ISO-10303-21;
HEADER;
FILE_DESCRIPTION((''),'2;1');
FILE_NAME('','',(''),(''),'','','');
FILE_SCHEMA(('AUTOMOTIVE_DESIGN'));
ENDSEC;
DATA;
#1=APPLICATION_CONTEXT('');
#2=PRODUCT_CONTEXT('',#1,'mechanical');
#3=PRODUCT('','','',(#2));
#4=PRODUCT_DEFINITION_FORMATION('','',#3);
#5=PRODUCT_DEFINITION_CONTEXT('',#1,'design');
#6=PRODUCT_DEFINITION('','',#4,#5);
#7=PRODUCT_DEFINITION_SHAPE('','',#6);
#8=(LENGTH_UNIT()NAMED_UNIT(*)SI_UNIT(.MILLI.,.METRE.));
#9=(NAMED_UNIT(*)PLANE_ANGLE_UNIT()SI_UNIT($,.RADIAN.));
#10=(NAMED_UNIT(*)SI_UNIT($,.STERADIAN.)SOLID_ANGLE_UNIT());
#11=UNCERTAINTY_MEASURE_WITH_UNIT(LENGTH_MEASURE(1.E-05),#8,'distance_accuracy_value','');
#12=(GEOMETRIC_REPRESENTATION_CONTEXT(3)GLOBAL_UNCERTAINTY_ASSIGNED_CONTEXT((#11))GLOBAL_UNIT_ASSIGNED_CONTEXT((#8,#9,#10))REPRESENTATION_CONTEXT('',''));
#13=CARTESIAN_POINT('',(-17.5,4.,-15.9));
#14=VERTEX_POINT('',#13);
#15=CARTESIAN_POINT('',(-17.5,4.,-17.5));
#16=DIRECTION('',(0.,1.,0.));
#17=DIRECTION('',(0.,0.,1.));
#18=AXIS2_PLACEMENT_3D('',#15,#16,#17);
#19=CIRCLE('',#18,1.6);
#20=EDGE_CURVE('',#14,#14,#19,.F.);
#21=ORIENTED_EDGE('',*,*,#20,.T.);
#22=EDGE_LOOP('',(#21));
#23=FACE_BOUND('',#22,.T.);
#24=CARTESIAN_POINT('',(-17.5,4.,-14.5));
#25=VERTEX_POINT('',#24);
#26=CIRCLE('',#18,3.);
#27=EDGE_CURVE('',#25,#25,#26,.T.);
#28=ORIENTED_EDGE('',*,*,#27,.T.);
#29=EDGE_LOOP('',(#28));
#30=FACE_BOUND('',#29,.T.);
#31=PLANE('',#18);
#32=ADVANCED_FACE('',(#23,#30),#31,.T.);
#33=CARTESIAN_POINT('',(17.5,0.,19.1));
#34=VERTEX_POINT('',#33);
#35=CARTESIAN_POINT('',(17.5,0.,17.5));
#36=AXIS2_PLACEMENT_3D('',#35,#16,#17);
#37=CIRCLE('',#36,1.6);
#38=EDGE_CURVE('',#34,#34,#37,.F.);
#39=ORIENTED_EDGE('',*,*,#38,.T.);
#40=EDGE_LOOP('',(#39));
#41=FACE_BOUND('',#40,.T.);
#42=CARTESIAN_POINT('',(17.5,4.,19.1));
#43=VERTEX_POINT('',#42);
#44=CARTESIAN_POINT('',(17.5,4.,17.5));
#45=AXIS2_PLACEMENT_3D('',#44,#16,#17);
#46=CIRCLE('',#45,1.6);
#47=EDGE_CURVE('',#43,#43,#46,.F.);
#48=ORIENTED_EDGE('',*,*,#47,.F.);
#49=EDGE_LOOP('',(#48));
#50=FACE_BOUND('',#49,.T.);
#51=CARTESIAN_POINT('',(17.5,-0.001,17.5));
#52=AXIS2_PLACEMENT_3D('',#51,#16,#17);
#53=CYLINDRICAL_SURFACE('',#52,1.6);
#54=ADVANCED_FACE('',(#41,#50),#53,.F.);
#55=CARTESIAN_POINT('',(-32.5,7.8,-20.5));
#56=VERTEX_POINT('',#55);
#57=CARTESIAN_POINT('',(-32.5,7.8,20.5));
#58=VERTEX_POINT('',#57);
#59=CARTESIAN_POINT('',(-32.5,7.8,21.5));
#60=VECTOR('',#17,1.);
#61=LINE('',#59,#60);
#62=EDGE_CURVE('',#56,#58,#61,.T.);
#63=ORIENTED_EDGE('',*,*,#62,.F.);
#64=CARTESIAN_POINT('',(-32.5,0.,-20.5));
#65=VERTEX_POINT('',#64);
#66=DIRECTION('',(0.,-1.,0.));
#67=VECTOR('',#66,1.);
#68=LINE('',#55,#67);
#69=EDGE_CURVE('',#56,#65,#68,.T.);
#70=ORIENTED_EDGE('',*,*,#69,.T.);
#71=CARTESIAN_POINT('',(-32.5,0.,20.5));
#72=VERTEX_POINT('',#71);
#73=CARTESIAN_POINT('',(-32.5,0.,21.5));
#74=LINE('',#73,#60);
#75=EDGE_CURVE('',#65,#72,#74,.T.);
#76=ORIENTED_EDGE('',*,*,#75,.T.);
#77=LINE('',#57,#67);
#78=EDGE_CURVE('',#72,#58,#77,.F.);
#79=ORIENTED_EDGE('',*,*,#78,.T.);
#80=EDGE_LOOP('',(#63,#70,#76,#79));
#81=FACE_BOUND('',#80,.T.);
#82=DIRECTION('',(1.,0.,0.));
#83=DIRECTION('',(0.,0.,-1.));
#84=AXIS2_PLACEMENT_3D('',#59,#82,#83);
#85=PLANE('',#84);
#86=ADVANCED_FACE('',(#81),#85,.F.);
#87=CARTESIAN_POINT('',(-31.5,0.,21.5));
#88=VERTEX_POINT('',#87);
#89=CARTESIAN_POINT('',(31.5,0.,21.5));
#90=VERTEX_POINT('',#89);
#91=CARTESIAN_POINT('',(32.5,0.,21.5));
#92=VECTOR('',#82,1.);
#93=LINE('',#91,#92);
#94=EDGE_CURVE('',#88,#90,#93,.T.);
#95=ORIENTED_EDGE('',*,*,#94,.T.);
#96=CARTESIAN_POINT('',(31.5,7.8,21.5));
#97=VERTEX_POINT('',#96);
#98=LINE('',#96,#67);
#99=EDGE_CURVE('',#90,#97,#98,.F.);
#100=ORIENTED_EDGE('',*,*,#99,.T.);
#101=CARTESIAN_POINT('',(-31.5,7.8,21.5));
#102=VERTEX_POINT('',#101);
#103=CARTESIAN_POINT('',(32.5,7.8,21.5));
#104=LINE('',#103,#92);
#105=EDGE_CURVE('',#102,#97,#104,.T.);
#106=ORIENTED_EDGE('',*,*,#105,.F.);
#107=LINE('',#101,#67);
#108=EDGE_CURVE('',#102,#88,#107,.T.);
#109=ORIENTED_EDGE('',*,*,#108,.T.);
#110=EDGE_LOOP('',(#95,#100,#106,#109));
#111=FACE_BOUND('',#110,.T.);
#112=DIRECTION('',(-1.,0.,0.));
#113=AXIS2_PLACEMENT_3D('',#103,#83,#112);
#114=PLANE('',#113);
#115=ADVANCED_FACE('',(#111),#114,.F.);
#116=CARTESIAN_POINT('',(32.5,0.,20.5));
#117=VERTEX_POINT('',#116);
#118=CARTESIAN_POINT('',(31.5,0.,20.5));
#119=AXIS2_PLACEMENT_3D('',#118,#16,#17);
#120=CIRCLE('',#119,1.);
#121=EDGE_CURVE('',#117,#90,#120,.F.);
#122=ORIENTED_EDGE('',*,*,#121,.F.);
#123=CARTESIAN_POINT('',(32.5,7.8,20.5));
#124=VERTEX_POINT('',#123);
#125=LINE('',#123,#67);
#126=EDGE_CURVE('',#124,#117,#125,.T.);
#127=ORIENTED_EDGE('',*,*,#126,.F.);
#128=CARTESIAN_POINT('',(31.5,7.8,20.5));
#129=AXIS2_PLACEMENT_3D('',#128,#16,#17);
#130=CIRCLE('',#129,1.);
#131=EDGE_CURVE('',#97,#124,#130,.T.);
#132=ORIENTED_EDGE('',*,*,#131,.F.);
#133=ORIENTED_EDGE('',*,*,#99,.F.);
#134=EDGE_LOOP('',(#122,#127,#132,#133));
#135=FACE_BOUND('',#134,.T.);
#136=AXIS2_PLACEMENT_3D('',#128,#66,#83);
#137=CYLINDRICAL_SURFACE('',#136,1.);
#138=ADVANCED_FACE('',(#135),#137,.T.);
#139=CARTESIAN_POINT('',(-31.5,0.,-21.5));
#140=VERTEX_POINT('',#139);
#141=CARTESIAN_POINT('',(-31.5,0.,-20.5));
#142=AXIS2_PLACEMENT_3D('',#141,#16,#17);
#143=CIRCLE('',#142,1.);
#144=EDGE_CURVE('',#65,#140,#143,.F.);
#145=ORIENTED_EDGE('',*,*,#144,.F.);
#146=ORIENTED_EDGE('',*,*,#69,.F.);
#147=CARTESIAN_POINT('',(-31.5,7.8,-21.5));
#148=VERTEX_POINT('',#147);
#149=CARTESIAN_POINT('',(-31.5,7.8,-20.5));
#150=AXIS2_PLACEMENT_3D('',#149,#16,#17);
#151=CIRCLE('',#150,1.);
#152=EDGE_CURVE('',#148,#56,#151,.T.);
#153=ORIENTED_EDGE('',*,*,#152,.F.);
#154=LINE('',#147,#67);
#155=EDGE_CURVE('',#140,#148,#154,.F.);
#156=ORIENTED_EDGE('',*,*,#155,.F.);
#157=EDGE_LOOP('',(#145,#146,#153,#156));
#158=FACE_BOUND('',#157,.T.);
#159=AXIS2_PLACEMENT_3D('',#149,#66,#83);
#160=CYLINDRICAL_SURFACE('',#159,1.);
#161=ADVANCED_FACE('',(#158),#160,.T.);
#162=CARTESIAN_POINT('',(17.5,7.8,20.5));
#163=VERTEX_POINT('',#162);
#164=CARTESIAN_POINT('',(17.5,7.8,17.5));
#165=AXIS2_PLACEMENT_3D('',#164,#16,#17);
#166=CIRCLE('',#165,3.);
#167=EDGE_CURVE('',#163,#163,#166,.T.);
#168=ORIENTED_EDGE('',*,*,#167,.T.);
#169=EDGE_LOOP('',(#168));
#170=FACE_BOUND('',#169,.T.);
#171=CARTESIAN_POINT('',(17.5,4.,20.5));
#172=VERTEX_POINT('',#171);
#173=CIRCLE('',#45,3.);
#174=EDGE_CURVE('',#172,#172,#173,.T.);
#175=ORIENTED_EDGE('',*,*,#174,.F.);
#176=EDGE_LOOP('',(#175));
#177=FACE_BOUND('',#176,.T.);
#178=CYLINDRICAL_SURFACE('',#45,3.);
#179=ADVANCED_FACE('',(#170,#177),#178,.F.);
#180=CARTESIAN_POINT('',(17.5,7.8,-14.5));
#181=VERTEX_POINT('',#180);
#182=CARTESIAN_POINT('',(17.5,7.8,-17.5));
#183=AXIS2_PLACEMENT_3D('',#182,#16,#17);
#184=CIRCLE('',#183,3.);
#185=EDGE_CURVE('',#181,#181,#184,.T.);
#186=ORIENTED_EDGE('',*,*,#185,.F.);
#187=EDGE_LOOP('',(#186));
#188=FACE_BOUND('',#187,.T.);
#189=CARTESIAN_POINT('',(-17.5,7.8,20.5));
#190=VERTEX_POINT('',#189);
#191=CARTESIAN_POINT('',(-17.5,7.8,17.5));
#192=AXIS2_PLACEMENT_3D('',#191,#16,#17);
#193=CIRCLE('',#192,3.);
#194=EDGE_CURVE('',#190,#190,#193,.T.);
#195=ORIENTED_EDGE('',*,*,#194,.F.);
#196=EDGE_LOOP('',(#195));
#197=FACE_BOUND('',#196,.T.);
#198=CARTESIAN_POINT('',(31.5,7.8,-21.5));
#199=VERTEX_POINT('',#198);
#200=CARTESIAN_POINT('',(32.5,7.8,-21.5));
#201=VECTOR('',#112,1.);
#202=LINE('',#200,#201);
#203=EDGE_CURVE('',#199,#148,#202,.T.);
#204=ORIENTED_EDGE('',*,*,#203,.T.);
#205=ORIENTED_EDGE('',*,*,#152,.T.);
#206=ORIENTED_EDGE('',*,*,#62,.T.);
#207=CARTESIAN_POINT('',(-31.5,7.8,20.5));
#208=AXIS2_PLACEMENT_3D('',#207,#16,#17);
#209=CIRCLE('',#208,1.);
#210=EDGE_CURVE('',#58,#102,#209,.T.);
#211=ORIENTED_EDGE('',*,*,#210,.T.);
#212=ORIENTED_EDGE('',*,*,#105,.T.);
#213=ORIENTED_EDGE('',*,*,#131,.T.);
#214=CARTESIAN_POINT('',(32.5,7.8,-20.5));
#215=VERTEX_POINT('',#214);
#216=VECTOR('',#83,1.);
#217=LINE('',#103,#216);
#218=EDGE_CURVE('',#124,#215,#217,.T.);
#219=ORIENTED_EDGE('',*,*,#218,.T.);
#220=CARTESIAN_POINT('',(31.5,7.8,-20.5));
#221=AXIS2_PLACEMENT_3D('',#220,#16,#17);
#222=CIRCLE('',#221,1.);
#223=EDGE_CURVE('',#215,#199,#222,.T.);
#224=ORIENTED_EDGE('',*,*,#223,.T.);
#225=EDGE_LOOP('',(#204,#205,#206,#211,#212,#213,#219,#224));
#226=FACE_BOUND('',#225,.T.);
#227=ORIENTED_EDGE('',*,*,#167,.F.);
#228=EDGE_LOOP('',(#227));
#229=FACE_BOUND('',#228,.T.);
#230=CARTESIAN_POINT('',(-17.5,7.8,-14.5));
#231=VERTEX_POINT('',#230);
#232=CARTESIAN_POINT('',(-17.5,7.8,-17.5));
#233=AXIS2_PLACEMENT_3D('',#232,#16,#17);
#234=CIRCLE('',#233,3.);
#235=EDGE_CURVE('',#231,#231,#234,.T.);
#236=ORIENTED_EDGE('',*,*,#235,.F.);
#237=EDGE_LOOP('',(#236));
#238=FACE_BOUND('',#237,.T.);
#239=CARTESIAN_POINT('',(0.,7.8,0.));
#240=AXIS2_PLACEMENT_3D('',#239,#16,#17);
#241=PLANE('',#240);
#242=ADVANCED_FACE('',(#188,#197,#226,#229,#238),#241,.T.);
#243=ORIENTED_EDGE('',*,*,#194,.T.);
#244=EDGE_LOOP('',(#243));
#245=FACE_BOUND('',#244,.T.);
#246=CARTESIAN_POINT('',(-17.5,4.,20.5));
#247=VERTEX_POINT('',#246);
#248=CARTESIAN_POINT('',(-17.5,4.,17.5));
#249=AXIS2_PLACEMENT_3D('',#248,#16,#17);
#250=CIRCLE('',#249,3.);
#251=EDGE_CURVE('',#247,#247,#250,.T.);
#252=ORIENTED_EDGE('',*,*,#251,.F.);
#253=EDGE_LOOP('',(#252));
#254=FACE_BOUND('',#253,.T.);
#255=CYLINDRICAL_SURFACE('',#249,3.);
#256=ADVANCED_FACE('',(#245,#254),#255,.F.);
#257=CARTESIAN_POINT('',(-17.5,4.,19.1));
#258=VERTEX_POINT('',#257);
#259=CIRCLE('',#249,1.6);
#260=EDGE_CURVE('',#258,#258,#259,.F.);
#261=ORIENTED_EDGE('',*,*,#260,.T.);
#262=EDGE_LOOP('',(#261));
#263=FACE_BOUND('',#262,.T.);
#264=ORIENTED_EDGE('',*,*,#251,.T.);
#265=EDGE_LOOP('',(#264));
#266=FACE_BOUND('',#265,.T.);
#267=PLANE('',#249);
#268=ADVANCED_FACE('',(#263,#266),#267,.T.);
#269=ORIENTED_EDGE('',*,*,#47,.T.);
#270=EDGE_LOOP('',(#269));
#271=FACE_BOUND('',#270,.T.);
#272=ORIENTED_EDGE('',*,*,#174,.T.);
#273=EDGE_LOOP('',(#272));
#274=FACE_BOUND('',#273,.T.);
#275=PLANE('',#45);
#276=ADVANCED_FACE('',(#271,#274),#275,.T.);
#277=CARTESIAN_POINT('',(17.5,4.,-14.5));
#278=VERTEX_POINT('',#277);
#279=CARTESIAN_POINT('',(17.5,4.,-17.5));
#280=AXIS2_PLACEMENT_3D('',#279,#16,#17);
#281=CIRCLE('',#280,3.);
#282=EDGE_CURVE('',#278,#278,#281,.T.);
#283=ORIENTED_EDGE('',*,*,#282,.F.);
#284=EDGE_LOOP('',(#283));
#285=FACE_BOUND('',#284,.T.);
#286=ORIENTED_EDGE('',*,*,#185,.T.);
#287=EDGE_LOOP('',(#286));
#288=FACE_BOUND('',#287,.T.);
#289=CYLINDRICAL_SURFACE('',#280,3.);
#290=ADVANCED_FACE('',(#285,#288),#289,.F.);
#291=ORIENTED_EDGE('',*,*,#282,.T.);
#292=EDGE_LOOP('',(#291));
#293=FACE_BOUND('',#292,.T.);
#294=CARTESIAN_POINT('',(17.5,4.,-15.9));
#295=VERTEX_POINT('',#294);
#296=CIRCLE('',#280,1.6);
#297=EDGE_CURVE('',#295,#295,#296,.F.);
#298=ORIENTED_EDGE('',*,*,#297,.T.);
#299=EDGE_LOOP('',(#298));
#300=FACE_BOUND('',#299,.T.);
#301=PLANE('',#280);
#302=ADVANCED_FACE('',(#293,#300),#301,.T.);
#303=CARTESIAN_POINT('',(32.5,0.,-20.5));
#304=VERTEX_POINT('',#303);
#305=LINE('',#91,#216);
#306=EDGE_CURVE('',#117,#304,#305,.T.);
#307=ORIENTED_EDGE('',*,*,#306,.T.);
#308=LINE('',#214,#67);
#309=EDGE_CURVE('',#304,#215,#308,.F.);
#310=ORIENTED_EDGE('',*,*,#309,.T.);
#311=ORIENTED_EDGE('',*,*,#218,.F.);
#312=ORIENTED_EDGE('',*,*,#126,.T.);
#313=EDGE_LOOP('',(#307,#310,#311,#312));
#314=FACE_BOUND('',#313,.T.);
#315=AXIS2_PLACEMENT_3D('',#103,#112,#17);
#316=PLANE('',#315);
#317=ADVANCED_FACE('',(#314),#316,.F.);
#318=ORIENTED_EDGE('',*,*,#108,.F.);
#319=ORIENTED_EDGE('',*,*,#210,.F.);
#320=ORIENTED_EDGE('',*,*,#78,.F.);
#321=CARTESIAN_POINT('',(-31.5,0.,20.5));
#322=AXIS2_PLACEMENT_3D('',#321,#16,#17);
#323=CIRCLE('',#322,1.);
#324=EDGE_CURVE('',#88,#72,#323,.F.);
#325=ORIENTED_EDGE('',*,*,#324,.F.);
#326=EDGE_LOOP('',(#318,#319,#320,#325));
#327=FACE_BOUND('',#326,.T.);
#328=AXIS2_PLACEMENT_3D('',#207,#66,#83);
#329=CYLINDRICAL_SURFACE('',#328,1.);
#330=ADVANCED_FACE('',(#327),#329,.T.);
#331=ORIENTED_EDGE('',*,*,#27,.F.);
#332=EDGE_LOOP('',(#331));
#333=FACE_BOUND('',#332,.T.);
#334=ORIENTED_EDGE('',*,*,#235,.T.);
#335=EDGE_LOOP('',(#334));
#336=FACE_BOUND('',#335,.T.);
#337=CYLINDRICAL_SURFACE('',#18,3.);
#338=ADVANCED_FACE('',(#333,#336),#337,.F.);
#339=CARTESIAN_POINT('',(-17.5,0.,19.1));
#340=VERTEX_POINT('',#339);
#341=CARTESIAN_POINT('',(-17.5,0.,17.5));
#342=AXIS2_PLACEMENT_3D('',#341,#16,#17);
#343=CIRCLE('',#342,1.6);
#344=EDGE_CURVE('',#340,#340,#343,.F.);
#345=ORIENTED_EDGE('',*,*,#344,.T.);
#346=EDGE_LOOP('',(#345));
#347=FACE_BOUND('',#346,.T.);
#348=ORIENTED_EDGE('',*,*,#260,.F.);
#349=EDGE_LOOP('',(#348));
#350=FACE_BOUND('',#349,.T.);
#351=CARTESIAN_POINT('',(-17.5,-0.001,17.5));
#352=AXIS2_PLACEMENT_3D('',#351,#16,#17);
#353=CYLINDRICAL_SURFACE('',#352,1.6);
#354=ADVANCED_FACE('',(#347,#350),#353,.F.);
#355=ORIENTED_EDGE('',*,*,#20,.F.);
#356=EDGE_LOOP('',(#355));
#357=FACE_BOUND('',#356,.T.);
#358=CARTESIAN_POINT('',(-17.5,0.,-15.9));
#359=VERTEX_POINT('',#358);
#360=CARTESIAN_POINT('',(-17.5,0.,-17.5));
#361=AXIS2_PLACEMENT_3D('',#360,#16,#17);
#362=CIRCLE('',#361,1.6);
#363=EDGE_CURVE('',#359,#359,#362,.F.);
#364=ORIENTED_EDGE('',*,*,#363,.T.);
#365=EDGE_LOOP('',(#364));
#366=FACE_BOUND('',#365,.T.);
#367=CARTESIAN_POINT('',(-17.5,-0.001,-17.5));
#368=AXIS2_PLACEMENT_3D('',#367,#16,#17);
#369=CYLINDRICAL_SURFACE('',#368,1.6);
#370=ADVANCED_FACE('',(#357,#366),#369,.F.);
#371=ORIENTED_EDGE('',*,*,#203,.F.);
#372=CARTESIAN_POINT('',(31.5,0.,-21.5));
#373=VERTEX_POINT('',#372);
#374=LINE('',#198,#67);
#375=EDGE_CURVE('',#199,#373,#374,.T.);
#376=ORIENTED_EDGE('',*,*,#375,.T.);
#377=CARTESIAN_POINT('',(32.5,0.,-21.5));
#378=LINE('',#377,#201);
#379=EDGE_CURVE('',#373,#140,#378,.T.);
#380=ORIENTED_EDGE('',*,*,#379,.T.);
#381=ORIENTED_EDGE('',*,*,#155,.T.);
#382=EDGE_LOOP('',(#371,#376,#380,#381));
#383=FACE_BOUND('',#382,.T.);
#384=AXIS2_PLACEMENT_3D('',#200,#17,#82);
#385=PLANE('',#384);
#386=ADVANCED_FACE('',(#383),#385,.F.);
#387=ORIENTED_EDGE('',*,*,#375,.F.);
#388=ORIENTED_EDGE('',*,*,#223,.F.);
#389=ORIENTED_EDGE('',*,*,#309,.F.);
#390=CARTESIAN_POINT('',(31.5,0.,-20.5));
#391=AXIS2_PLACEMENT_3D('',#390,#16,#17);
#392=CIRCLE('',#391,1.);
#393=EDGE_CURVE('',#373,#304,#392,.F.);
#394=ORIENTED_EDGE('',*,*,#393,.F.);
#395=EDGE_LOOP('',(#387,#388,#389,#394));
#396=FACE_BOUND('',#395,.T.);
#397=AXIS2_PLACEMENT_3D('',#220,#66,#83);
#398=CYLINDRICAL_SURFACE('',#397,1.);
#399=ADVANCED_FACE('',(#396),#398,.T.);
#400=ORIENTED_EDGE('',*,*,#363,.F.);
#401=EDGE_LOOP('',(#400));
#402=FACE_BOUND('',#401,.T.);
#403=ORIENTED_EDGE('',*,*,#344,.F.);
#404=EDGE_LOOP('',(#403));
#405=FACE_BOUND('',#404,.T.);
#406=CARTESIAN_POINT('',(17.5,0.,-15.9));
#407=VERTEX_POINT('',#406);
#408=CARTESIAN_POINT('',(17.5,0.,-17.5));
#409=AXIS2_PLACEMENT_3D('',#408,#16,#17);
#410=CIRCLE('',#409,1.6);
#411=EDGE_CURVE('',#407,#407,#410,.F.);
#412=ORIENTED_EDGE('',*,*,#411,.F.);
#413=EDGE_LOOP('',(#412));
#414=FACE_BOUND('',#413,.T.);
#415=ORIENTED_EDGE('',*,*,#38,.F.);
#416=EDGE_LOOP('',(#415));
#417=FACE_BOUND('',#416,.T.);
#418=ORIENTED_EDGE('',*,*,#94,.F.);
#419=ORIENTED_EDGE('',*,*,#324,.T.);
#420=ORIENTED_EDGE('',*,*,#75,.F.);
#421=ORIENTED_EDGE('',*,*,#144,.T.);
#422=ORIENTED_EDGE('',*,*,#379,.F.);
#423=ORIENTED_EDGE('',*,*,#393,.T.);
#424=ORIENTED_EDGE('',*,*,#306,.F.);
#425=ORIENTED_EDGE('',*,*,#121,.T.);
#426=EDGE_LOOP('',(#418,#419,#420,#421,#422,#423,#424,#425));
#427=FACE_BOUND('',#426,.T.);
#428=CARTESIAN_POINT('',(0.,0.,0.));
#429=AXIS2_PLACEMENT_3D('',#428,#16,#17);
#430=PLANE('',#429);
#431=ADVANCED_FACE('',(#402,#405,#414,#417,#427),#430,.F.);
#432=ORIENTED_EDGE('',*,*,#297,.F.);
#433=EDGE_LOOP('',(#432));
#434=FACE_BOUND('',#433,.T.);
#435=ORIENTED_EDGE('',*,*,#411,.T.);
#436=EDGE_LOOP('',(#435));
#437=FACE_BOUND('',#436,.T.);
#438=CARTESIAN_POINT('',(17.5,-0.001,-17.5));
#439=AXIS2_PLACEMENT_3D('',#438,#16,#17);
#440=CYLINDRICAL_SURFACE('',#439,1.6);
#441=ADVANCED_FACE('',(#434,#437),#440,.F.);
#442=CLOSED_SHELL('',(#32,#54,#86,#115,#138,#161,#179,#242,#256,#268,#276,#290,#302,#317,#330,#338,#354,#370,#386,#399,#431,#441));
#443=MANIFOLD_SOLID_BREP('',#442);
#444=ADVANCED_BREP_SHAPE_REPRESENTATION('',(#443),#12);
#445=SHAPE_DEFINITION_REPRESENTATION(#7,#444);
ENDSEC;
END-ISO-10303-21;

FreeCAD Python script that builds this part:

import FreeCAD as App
import Part
import Sketcher
Q = App.Units.Quantity


def edges_at(feature, points):
    """Names of the edges that pass closest to the given points."""
    edges = feature.Shape.Edges
    near = lambda p: min(range(len(edges)), key=lambda i: edges[i].distToShape(Part.Vertex(*p))[0])
    return sorted({f"Edge{near(p) + 1}" for p in points})


def add_polygon(sketch, points):
    """Adds a closed chain of lines whose ends are joined by coincident constraints."""
    first, n = sketch.GeometryCount, len(points)
    for a, b in zip(points, points[1:] + points[:1]):
        sketch.addGeometry(Part.LineSegment(App.Vector(*a, 0), App.Vector(*b, 0)), False)
    for i in range(n):
        sketch.addConstraint(Sketcher.Constraint("Coincident", first + i, 2, first + (i + 1) % n, 1))

doc = App.newDocument("Part")
body = doc.addObject("PartDesign::Body", "Body")

# Sketch on XZ plane
sketch1 = body.newObject("Sketcher::SketchObject", "Sketch")
sketch1.AttachmentSupport = (doc.getObject("XZ_Plane"), [""])
sketch1.MapMode = "FlatFace"
add_polygon(sketch1, [(-32, -22), (-32, 22), (32, 22), (32, -22)])  # lines 0-3
sketch1.addConstraint(Sketcher.Constraint("Vertical", 0))
sketch1.addConstraint(Sketcher.Constraint("Horizontal", 1))
sketch1.addConstraint(Sketcher.Constraint("Vertical", 2))
sketch1.addConstraint(Sketcher.Constraint("Horizontal", 3))
sketch1.addConstraint(Sketcher.Constraint("Symmetric", 0, 2, 2, 2, -1, 1))
sketch1.addConstraint(Sketcher.Constraint("DistanceX", 1, 1, 1, 2, Q("65 mm")))
sketch1.addConstraint(Sketcher.Constraint("DistanceY", 0, 1, 0, 2, Q("43 mm")))
pad1 = body.newObject("PartDesign::Pad", "Pad")
pad1.Profile = sketch1
pad1.Length = 7.8
pad1.Reversed = True
doc.recompute()

fillet = body.newObject("PartDesign::Fillet", "Fillet")
fillet.Base = (pad1, edges_at(pad1, [
    (-32.5, 3.9, -21.5),
    (32.5, 3.9, -21.5),
    (32.5, 3.9, 21.5),
    (-32.5, 3.9, 21.5),
]))
fillet.Radius = 1

# Sketch on XZ plane
sketch2 = body.newObject("Sketcher::SketchObject", "Sketch001")
sketch2.AttachmentSupport = (doc.getObject("XZ_Plane"), [""])
sketch2.MapMode = "FlatFace"
sketch2.AttachmentOffset = App.Placement(App.Vector(0, 0, -7.8), App.Rotation())
sketch2.addGeometry(Part.Circle(App.Vector(-17.5, -17.5, 0), App.Vector(0, 0, 1), 1.6), False)
sketch2.addConstraint(Sketcher.Constraint("Diameter", 0, Q("3.2 mm")))
sketch2.addConstraint(Sketcher.Constraint("DistanceX", 0, 3, -1, 1, Q("17.5 mm")))
sketch2.addConstraint(Sketcher.Constraint("DistanceY", 0, 3, -1, 1, Q("17.5 mm")))
pocket1 = body.newObject("PartDesign::Pocket", "Pocket")
pocket1.Profile = sketch2
pocket1.Type = "UpToFirst"
pocket1.Reversed = True

# Sketch on XZ plane
sketch3 = body.newObject("Sketcher::SketchObject", "Sketch002")
sketch3.AttachmentSupport = (doc.getObject("XZ_Plane"), [""])
sketch3.MapMode = "FlatFace"
sketch3.AttachmentOffset = App.Placement(App.Vector(0, 0, -7.8), App.Rotation())
sketch3.addGeometry(Part.Circle(App.Vector(17.5, -17.5, 0), App.Vector(0, 0, 1), 1.6), False)
sketch3.addConstraint(Sketcher.Constraint("Diameter", 0, Q("3.2 mm")))
sketch3.addConstraint(Sketcher.Constraint("DistanceX", -1, 1, 0, 3, Q("17.5 mm")))
sketch3.addConstraint(Sketcher.Constraint("DistanceY", 0, 3, -1, 1, Q("17.5 mm")))
pocket2 = body.newObject("PartDesign::Pocket", "Pocket001")
pocket2.Profile = sketch3
pocket2.Type = "UpToFirst"
pocket2.Reversed = True

# Sketch on XZ plane
sketch4 = body.newObject("Sketcher::SketchObject", "Sketch003")
sketch4.AttachmentSupport = (doc.getObject("XZ_Plane"), [""])
sketch4.MapMode = "FlatFace"
sketch4.AttachmentOffset = App.Placement(App.Vector(0, 0, -7.8), App.Rotation())
sketch4.addGeometry(Part.Circle(App.Vector(17.5, 17.5, 0), App.Vector(0, 0, 1), 1.6), False)
sketch4.addConstraint(Sketcher.Constraint("Diameter", 0, Q("3.2 mm")))
sketch4.addConstraint(Sketcher.Constraint("DistanceX", -1, 1, 0, 3, Q("17.5 mm")))
sketch4.addConstraint(Sketcher.Constraint("DistanceY", -1, 1, 0, 3, Q("17.5 mm")))
pocket3 = body.newObject("PartDesign::Pocket", "Pocket002")
pocket3.Profile = sketch4
pocket3.Type = "UpToFirst"
pocket3.Reversed = True

# Sketch on XZ plane
sketch5 = body.newObject("Sketcher::SketchObject", "Sketch004")
sketch5.AttachmentSupport = (doc.getObject("XZ_Plane"), [""])
sketch5.MapMode = "FlatFace"
sketch5.AttachmentOffset = App.Placement(App.Vector(0, 0, -7.8), App.Rotation())
sketch5.addGeometry(Part.Circle(App.Vector(-17.5, 17.5, 0), App.Vector(0, 0, 1), 1.6), False)
sketch5.addConstraint(Sketcher.Constraint("Diameter", 0, Q("3.2 mm")))
sketch5.addConstraint(Sketcher.Constraint("DistanceX", 0, 3, -1, 1, Q("17.5 mm")))
sketch5.addConstraint(Sketcher.Constraint("DistanceY", -1, 1, 0, 3, Q("17.5 mm")))
pocket4 = body.newObject("PartDesign::Pocket", "Pocket003")
pocket4.Profile = sketch5
pocket4.Type = "UpToFirst"
pocket4.Reversed = True

# Sketch on XZ plane
sketch6 = body.newObject("Sketcher::SketchObject", "Sketch005")
sketch6.AttachmentSupport = (doc.getObject("XZ_Plane"), [""])
sketch6.MapMode = "FlatFace"
sketch6.AttachmentOffset = App.Placement(App.Vector(0, 0, -7.8), App.Rotation())
sketch6.addGeometry(Part.Circle(App.Vector(-17.5, -17.5, 0), App.Vector(0, 0, 1), 3), False)
sketch6.addGeometry(Part.Circle(App.Vector(17.5, -17.5, 0), App.Vector(0, 0, 1), 3), False)
sketch6.addGeometry(Part.Circle(App.Vector(17.5, 17.5, 0), App.Vector(0, 0, 1), 3), False)
sketch6.addGeometry(Part.Circle(App.Vector(-17.5, 17.5, 0), App.Vector(0, 0, 1), 3), False)
sketch6.addConstraint(Sketcher.Constraint("Equal", 0, 1))
sketch6.addConstraint(Sketcher.Constraint("Equal", 1, 2))
sketch6.addConstraint(Sketcher.Constraint("Equal", 2, 3))
sketch6.addConstraint(Sketcher.Constraint("Symmetric", 0, 3, 2, 3, -1, 1))
sketch6.addConstraint(Sketcher.Constraint("Symmetric", 1, 3, 3, 3, -1, 1))
sketch6.addConstraint(Sketcher.Constraint("Symmetric", 0, 3, 1, 3, -2))
sketch6.addConstraint(Sketcher.Constraint("Diameter", 0, Q("6 mm")))
sketch6.addConstraint(Sketcher.Constraint("DistanceX", 0, 3, 1, 3, Q("35 mm")))
sketch6.addConstraint(Sketcher.Constraint("DistanceY", 1, 3, 2, 3, Q("35 mm")))
pocket5 = body.newObject("PartDesign::Pocket", "Pocket004")
pocket5.Profile = sketch6
pocket5.Length = 3.8
pocket5.Reversed = True

doc.recompute()
